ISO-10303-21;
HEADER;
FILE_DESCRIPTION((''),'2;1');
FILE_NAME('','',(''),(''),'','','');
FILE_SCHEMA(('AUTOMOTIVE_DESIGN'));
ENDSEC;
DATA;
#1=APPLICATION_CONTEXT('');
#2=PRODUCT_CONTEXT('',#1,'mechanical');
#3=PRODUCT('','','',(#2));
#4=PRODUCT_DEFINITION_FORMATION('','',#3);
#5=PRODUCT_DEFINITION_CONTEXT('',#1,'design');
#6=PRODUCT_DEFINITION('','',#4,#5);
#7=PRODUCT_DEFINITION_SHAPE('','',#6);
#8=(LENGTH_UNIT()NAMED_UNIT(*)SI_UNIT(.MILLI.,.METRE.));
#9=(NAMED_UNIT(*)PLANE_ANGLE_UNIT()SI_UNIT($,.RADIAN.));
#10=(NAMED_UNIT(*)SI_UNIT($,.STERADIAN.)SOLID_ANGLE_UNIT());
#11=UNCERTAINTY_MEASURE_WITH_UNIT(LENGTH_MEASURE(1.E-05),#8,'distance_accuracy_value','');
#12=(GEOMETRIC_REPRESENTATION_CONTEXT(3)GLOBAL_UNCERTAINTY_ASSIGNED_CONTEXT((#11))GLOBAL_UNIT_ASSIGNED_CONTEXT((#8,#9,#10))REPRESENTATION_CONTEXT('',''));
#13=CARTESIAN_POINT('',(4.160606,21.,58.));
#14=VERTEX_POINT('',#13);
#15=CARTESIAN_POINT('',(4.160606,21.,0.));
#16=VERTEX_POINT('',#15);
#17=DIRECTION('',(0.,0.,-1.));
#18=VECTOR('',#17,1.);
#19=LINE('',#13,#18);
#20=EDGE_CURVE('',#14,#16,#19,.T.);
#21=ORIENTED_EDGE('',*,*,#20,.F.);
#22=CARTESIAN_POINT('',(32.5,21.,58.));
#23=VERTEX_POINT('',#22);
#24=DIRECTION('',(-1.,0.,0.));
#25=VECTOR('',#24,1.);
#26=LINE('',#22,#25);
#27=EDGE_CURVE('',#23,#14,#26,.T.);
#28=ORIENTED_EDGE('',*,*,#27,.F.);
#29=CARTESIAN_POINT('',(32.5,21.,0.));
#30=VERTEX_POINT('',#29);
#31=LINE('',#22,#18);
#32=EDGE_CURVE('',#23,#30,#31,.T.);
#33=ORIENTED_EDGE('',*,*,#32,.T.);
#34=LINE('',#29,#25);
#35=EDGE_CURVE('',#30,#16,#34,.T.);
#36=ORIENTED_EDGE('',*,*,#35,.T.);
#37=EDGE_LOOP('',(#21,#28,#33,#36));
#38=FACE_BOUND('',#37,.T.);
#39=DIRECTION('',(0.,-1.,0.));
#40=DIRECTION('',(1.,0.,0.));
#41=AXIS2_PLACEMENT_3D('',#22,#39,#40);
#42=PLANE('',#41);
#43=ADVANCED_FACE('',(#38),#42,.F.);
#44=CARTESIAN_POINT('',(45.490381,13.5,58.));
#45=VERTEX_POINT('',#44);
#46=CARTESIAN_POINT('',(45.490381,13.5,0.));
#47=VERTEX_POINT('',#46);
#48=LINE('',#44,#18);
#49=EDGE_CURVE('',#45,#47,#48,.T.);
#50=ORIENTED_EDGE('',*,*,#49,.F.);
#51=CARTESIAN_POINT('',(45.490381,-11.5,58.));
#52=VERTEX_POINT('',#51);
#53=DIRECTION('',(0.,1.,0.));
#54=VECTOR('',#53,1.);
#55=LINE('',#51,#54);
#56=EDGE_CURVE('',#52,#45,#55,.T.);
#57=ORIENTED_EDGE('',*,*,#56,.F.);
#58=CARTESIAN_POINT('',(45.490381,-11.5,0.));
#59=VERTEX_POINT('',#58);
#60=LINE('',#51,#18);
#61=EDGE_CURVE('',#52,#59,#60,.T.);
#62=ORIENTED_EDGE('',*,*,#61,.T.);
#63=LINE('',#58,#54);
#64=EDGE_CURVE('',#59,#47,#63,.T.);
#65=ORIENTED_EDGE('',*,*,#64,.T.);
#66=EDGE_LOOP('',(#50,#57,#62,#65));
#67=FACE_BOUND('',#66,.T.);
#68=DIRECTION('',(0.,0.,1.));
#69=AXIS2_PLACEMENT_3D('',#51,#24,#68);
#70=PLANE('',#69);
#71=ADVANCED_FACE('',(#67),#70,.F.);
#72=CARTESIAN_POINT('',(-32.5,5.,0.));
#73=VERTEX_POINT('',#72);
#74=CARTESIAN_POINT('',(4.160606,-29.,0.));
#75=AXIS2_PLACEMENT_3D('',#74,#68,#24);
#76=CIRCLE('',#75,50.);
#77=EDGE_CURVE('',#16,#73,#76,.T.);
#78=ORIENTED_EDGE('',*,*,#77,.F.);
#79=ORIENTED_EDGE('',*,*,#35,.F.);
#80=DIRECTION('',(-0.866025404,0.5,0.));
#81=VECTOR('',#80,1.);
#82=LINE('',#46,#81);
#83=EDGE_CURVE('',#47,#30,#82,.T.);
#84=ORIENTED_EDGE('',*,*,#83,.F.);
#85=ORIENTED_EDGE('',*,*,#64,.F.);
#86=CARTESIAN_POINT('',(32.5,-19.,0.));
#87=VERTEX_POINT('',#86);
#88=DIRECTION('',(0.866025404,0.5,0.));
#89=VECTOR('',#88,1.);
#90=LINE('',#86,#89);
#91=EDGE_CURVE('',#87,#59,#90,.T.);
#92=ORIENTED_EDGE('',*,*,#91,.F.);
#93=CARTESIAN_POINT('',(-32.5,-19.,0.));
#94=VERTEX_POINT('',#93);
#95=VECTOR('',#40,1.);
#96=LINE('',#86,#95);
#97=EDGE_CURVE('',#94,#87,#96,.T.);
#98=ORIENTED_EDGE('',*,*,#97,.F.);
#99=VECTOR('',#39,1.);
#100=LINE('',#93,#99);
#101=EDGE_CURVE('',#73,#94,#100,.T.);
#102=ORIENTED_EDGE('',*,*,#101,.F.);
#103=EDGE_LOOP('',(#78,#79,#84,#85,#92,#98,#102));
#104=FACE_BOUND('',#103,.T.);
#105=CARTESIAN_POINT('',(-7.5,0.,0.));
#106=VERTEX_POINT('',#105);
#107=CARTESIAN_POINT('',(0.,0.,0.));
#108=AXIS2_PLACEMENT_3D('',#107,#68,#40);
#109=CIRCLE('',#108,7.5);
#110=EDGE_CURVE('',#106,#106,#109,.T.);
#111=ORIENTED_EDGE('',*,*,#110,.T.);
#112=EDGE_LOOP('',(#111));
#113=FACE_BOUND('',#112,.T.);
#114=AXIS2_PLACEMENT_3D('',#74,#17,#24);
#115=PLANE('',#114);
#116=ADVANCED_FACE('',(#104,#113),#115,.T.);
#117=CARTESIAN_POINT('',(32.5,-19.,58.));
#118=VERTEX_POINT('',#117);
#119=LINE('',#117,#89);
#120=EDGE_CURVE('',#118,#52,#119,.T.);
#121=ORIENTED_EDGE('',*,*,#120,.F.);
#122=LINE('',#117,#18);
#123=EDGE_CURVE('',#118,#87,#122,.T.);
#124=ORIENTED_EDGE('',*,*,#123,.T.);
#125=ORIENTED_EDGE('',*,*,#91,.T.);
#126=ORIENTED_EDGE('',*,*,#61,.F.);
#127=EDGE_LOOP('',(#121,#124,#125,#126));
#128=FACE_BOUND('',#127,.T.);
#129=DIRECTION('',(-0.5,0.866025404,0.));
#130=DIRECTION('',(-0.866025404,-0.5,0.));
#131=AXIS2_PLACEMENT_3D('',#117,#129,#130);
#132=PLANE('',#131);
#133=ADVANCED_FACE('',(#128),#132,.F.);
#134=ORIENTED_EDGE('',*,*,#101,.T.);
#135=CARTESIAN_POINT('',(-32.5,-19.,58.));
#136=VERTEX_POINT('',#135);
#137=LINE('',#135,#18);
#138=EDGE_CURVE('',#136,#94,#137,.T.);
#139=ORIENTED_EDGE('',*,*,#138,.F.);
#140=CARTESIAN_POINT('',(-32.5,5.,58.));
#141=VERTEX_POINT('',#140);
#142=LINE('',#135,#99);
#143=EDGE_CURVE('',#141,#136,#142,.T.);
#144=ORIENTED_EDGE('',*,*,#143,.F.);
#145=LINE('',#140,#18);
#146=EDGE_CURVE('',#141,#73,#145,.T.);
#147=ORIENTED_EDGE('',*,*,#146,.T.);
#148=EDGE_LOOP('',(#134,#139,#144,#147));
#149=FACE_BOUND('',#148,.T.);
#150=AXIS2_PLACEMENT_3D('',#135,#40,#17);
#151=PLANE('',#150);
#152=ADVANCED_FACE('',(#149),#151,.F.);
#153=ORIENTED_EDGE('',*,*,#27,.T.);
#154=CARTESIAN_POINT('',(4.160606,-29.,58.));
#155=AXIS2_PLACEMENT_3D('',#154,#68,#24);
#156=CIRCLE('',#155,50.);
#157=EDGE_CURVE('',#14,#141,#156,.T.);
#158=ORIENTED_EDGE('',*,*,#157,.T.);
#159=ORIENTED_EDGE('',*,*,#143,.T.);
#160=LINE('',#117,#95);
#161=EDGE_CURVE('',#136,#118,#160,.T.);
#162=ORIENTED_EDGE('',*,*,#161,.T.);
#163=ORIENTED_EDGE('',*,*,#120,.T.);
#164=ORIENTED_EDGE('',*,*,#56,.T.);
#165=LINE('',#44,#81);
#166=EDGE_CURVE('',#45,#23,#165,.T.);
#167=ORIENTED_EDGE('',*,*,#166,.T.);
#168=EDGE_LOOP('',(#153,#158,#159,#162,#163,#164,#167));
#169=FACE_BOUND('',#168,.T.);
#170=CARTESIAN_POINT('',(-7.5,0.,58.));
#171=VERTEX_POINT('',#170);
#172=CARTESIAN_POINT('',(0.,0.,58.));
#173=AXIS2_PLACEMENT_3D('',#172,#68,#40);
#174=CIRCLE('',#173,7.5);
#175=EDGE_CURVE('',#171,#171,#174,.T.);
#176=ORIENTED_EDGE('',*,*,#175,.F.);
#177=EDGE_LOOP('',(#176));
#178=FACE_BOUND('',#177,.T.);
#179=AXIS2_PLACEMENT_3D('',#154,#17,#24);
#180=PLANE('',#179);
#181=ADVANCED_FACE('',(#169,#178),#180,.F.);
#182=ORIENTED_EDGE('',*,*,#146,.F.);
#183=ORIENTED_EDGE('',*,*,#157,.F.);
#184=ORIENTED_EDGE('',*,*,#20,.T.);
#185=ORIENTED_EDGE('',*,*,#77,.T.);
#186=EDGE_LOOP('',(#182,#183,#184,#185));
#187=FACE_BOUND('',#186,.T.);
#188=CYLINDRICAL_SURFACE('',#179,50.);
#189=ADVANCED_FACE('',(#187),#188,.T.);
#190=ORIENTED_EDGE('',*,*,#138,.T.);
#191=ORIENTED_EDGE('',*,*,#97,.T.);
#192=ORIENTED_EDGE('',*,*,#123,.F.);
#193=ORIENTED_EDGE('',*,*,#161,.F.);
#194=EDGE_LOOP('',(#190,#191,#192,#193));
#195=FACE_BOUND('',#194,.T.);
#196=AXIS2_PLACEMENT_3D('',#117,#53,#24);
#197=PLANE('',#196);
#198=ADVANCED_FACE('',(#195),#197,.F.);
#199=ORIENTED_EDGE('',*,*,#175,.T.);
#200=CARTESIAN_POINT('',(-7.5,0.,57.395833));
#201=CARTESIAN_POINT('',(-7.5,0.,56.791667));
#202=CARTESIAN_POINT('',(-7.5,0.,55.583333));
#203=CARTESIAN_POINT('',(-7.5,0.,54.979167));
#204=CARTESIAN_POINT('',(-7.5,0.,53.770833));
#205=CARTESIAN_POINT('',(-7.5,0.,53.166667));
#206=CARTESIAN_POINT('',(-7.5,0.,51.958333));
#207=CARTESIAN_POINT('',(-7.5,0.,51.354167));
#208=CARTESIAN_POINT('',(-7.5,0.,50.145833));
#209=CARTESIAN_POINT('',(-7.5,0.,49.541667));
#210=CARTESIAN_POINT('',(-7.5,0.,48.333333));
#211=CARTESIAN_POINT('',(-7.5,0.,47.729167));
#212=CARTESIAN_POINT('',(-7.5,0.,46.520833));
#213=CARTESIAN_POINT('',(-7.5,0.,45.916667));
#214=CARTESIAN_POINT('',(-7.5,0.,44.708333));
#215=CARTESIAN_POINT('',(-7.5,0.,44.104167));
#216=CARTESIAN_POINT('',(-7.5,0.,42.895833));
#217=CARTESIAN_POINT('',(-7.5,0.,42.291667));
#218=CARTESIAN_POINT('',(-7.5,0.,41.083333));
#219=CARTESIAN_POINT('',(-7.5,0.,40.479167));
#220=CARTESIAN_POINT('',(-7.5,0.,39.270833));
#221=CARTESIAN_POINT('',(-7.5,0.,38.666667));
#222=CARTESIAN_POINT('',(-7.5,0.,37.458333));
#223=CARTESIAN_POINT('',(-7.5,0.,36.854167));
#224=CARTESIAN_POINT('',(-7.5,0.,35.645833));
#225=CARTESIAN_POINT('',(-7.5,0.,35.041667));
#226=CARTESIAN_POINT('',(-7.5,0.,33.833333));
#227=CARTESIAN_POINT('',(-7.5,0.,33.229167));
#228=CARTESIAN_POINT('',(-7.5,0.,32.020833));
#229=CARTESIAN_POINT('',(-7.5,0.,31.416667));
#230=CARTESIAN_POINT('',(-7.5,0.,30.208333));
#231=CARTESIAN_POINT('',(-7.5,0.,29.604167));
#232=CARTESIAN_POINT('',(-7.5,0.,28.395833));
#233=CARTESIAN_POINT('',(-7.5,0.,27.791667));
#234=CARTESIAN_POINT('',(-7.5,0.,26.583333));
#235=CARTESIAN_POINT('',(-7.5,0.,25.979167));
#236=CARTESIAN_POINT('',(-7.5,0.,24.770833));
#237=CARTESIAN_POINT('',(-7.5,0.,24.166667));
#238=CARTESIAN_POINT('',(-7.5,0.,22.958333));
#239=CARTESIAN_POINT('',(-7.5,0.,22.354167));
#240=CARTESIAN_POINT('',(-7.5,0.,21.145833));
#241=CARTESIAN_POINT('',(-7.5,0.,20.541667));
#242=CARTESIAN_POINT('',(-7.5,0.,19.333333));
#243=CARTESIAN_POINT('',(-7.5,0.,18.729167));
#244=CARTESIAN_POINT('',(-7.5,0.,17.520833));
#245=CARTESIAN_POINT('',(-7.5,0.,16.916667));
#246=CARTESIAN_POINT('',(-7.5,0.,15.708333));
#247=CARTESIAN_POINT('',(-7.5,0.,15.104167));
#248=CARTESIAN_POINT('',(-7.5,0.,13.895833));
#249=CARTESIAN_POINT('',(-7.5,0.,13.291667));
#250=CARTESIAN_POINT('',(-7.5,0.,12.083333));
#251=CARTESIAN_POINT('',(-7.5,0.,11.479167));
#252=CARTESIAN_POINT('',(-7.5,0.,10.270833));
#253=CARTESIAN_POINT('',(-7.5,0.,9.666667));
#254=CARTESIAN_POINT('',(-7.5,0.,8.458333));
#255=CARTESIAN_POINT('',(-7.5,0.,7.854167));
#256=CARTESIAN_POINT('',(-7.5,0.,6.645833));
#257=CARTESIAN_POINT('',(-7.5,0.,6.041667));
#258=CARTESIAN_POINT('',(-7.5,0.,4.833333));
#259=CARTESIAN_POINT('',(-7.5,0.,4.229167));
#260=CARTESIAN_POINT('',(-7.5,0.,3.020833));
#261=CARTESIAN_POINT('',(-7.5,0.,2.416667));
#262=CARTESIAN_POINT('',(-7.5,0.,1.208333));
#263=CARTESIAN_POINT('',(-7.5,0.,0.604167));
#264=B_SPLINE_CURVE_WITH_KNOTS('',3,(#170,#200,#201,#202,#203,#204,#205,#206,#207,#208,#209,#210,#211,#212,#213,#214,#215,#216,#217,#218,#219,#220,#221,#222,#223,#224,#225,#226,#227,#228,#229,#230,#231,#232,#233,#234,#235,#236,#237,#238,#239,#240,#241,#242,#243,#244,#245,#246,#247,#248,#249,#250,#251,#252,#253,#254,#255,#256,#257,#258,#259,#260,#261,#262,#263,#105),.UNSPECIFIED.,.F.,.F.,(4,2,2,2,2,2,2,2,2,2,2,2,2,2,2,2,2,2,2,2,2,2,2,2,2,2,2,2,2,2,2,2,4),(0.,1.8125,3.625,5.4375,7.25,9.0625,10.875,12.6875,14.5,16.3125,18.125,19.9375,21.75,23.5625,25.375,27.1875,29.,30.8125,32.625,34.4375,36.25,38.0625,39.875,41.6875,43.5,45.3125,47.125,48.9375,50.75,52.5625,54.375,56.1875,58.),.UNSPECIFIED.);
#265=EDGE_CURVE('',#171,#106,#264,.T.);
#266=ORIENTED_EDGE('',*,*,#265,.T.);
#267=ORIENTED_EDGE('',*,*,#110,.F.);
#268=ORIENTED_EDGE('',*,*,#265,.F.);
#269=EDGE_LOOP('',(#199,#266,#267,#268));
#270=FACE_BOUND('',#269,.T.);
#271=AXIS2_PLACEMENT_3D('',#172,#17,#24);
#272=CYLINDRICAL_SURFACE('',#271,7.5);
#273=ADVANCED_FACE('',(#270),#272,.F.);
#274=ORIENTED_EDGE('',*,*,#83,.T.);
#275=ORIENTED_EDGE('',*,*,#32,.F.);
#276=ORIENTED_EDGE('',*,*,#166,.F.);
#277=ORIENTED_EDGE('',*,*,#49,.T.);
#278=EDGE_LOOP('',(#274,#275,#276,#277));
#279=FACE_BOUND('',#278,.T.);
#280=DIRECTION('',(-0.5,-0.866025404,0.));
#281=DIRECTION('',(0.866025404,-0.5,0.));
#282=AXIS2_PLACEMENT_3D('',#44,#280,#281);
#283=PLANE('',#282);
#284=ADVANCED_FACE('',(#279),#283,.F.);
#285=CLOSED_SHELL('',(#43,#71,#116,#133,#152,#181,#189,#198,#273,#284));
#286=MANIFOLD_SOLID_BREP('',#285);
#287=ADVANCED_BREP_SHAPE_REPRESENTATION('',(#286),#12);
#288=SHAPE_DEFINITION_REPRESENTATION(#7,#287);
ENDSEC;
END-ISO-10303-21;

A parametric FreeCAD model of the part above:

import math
import FreeCAD as App
import Part
import Sketcher

V = App.Vector
Q = App.Units.Quantity

doc = App.newDocument("Part")
body = doc.addObject("PartDesign::Body", "Body")

# Sketch on XY plane
sketch1 = body.newObject("Sketcher::SketchObject", "Sketch")
sketch1.AttachmentSupport = (doc.getObject("XY_Plane"), [""])
sketch1.MapMode = "FlatFace"
sketch1.addGeometry(Part.LineSegment(V(-32, -19, 0), V(32, -19, 0)), False)
sketch1.addGeometry(Part.LineSegment(V(32, -19, 0), V(45, -12, 0)), False)
sketch1.addGeometry(Part.LineSegment(V(45, -12, 0), V(45, 14, 0)), False)
sketch1.addGeometry(Part.LineSegment(V(45, 14, 0), V(32, 21, 0)), False)
sketch1.addGeometry(Part.LineSegment(V(32, 21, 0), V(4, 21, 0)), False)
sketch1.addGeometry(Part.ArcOfCircle(Part.Circle(V(4, -29, 0), V(0, 0, 1), 50), math.radians(90), math.radians(137)), False)
sketch1.addGeometry(Part.LineSegment(V(-32, 5, 0), V(-32, -19, 0)), False)
sketch1.addGeometry(Part.Circle(V(0, 0, 0), V(0, 0, 1), 8), False)
sketch1.addConstraint(Sketcher.Constraint("Coincident", 0, 2, 1, 1))
sketch1.addConstraint(Sketcher.Constraint("Coincident", 1, 2, 2, 1))
sketch1.addConstraint(Sketcher.Constraint("Coincident", 2, 2, 3, 1))
sketch1.addConstraint(Sketcher.Constraint("Coincident", 3, 2, 4, 1))
sketch1.addConstraint(Sketcher.Constraint("Tangent", 4, 2, 5, 1))
sketch1.addConstraint(Sketcher.Constraint("Coincident", 5, 2, 6, 1))
sketch1.addConstraint(Sketcher.Constraint("Coincident", 6, 2, 0, 1))
sketch1.addConstraint(Sketcher.Constraint("Horizontal", 0))
sketch1.addConstraint(Sketcher.Constraint("Vertical", 2))
sketch1.addConstraint(Sketcher.Constraint("Horizontal", 4))
sketch1.addConstraint(Sketcher.Constraint("Vertical", 6))
sketch1.addConstraint(Sketcher.Constraint("Coincident", 7, 3, -1, 1))
sketch1.addConstraint(Sketcher.Constraint("Vertical", 0, 2, 3, 2))
sketch1.addConstraint(Sketcher.Constraint("Equal", 1, 3))
sketch1.addConstraint(Sketcher.Constraint("Diameter", 7, Q("15 mm")))
sketch1.addConstraint(Sketcher.Constraint("Radius", 5, Q("50 mm")))
sketch1.addConstraint(Sketcher.Constraint("DistanceX", 0, 1, 0, 2, Q("65 mm")))
sketch1.addConstraint(Sketcher.Constraint("DistanceY", 2, 1, 2, 2, Q("25 mm")))
sketch1.addConstraint(Sketcher.Constraint("DistanceY", 6, 2, 6, 1, Q("24 mm")))
sketch1.addConstraint(Sketcher.Constraint("Angle", 1, Q("30 deg")))
sketch1.addConstraint(Sketcher.Constraint("Distance", 1, Q("15 mm")))
sketch1.addConstraint(Sketcher.Constraint("DistanceY", 5, 3, -1, 1, Q("29 mm")))
sketch1.addConstraint(Sketcher.Constraint("DistanceX", -1, 1, 0, 2, Q("32.5 mm")))
pad1 = body.newObject("PartDesign::Pad", "Pad")
pad1.Profile = sketch1
pad1.Length = 58

doc.recompute()
